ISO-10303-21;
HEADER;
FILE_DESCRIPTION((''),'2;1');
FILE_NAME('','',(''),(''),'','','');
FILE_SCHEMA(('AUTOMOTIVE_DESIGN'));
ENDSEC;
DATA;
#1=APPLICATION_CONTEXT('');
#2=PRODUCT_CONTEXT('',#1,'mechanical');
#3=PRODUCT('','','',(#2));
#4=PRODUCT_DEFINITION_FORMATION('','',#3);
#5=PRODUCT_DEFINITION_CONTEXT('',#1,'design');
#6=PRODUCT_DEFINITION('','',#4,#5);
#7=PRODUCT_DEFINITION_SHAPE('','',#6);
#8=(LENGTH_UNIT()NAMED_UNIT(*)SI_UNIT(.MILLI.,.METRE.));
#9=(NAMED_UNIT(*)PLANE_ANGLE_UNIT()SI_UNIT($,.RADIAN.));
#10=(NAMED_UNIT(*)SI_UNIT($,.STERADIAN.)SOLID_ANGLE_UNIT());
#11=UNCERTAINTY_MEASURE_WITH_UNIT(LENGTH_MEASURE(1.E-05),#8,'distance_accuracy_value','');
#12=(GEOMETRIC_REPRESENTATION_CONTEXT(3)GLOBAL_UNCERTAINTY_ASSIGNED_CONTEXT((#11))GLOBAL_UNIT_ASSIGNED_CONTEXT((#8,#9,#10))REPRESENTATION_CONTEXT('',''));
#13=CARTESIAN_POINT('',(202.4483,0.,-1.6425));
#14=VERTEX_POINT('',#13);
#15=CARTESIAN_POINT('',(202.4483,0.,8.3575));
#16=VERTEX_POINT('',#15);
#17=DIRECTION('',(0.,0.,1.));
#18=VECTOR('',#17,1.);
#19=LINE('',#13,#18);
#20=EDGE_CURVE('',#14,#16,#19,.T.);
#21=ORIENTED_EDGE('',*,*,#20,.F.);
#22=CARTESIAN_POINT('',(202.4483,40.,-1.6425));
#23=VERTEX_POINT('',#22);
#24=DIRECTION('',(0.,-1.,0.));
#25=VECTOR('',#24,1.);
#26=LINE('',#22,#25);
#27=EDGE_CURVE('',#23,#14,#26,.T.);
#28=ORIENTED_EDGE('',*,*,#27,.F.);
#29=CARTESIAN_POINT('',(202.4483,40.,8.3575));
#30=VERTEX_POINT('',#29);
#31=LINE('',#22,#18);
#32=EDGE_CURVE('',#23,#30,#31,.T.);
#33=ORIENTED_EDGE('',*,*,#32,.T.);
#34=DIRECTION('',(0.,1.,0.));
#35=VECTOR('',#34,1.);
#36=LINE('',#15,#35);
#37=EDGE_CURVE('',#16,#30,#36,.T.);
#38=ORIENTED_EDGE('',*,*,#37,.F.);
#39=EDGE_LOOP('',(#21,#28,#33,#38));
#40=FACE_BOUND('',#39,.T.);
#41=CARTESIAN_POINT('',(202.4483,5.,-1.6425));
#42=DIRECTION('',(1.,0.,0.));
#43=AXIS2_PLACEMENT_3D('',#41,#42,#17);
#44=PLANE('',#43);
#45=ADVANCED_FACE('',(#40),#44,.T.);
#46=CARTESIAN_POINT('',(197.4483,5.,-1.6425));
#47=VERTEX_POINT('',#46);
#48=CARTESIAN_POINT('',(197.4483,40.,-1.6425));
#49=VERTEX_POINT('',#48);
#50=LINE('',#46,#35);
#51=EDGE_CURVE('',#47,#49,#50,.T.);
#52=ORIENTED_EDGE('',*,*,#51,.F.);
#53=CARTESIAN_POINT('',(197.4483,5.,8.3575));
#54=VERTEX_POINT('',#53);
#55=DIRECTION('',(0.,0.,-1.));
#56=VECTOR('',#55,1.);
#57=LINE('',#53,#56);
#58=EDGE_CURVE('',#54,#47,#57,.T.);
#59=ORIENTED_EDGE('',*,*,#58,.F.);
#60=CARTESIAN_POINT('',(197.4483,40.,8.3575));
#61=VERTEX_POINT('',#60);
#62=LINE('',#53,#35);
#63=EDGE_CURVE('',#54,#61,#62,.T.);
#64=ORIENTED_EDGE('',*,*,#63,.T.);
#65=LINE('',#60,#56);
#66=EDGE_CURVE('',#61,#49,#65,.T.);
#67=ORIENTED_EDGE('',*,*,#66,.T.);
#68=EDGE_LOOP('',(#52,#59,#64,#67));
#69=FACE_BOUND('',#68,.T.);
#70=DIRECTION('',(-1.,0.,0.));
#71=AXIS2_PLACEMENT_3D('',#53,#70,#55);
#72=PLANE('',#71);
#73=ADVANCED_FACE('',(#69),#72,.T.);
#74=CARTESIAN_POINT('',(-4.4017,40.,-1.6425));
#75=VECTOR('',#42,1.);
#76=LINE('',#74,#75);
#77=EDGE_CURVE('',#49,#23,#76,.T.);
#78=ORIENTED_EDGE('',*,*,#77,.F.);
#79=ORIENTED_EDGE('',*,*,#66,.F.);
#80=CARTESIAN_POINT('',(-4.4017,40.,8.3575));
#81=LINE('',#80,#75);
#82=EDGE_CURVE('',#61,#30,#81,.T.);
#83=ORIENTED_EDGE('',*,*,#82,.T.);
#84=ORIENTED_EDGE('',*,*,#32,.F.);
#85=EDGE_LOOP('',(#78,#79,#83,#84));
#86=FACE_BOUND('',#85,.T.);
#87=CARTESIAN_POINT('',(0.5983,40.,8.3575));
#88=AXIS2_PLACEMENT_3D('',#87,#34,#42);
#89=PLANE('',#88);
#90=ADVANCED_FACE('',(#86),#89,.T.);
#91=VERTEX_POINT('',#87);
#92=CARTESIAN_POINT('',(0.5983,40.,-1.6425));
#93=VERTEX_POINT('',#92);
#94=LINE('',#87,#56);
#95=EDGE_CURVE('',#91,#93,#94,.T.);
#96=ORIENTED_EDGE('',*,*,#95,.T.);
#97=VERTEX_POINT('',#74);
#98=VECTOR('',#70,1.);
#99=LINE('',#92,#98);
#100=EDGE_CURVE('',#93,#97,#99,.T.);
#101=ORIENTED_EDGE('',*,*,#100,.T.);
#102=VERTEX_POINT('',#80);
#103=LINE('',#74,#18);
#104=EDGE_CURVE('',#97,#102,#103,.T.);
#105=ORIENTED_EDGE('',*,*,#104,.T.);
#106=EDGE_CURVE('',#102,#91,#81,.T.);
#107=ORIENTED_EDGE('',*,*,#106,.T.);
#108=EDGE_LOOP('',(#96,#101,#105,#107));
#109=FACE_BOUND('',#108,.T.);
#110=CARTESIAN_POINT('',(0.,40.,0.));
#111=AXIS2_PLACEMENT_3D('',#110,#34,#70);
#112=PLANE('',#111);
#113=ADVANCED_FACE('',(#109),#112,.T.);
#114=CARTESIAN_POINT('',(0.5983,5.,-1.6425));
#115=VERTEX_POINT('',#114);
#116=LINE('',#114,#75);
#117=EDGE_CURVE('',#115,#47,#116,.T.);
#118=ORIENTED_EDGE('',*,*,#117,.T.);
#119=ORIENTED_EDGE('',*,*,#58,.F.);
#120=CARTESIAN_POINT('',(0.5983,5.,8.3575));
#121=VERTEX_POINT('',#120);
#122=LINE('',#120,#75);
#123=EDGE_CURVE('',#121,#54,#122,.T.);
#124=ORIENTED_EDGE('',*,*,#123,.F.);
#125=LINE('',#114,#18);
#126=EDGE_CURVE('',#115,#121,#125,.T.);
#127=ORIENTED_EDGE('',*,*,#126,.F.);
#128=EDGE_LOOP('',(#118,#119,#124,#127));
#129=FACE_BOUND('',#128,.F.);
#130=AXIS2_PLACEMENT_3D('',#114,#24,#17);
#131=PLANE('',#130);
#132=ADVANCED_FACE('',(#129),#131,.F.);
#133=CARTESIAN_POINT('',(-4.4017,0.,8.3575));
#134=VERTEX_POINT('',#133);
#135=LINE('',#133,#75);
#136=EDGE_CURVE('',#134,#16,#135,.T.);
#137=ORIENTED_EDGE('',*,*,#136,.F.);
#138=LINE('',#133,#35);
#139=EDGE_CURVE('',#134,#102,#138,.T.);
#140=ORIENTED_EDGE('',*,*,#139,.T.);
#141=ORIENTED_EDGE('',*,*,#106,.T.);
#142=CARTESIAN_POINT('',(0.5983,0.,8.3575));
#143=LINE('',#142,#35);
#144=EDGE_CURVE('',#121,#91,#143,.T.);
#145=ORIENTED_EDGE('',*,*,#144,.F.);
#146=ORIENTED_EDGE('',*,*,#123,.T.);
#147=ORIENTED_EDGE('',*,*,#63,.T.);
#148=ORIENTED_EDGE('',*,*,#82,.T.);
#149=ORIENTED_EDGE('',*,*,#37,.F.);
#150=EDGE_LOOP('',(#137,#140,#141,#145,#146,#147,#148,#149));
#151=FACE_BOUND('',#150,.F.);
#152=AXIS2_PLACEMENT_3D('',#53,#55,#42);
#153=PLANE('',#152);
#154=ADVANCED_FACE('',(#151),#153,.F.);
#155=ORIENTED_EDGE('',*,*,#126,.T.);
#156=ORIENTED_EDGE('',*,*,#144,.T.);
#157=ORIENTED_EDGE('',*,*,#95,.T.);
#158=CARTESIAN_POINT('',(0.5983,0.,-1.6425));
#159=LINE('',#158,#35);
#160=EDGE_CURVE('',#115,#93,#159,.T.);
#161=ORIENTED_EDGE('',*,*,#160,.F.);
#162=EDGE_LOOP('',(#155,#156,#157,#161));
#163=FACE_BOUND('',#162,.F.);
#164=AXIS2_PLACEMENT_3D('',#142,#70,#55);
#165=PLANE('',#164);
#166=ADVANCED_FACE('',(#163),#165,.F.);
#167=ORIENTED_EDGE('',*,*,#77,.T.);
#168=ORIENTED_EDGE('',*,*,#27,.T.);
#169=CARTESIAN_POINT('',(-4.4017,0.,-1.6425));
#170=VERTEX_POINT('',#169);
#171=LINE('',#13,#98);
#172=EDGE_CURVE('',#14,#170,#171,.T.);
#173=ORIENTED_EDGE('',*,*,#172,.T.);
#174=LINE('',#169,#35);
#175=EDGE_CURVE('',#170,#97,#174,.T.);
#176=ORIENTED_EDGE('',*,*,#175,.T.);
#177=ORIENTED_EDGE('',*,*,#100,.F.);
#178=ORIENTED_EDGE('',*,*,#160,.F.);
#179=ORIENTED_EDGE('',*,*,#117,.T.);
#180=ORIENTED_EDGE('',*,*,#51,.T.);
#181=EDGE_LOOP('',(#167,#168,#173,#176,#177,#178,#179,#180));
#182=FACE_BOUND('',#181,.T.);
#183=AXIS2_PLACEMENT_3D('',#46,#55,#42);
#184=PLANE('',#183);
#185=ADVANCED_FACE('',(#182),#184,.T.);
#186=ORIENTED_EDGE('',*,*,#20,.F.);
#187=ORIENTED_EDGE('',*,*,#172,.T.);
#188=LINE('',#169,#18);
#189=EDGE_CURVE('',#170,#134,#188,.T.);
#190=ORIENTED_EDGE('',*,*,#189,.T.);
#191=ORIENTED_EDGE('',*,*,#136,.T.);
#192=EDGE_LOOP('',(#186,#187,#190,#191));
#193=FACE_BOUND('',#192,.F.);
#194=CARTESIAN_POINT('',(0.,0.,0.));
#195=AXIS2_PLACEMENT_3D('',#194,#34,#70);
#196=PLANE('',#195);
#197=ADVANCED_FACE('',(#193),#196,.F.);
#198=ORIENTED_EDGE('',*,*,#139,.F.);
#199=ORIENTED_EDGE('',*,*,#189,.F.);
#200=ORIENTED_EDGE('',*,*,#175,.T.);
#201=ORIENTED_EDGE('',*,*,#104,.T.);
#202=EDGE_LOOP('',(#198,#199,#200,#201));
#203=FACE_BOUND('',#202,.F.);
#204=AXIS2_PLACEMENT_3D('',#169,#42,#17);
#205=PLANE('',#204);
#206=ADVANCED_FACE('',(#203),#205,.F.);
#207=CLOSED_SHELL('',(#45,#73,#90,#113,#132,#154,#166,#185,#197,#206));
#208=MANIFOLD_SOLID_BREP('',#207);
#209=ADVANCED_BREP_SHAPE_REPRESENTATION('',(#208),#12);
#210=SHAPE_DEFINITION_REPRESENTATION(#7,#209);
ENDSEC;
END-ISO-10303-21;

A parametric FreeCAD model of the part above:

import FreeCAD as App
import Part
import Sketcher
from FreeCAD import Vector
Q = App.Units.Quantity


def add_polygon(sketch, points):
    """Adds a closed chain of lines whose ends are joined by coincident constraints."""
    first, n = sketch.GeometryCount, len(points)
    for a, b in zip(points, points[1:] + points[:1]):
        sketch.addGeometry(Part.LineSegment(App.Vector(*a, 0), App.Vector(*b, 0)), False)
    for i in range(n):
        sketch.addConstraint(Sketcher.Constraint("Coincident", first + i, 2, first + (i + 1) % n, 1))

doc = App.newDocument("Part")
body = doc.addObject("PartDesign::Body", "Body")

# Sketch on XZ plane
sketch1 = body.newObject("Sketcher::SketchObject", "Sketch")
sketch1.AttachmentSupport = (doc.getObject("XZ_Plane"), [""])
sketch1.MapMode = "FlatFace"
add_polygon(sketch1, [(-4, -2), (-4, 8), (1, 8), (1, -2)])  # lines 0-3
sketch1.addConstraint(Sketcher.Constraint("Vertical", 0))
sketch1.addConstraint(Sketcher.Constraint("Horizontal", 1))
sketch1.addConstraint(Sketcher.Constraint("Vertical", 2))
sketch1.addConstraint(Sketcher.Constraint("Horizontal", 3))
sketch1.addConstraint(Sketcher.Constraint("DistanceX", 1, 1, 1, 2, Q("5 mm")))
sketch1.addConstraint(Sketcher.Constraint("DistanceY", 0, 1, 0, 2, Q("10 mm")))
sketch1.addConstraint(Sketcher.Constraint("DistanceX", 0, 2, -1, 1, Q("4.4017 mm")))
sketch1.addConstraint(Sketcher.Constraint("DistanceY", -1, 1, 0, 2, Q("8.3575 mm")))
pad1 = body.newObject("PartDesign::Pad", "Pad")
pad1.Profile = sketch1
pad1.Length = 40
pad1.Reversed = True

# Sketch on YZ plane
sketch2 = body.newObject("Sketcher::SketchObject", "Sketch001")
sketch2.AttachmentSupport = (doc.getObject("YZ_Plane"), [""])
sketch2.MapMode = "FlatFace"
sketch2.AttachmentOffset = App.Placement(Vector(0, 0, 0.5983), App.Rotation())
add_polygon(sketch2, [(0, 8), (0, -2), (5, -2), (5, 8)])  # lines 0-3
sketch2.addConstraint(Sketcher.Constraint("Vertical", 0))
sketch2.addConstraint(Sketcher.Constraint("Horizontal", 1))
sketch2.addConstraint(Sketcher.Constraint("Vertical", 2))
sketch2.addConstraint(Sketcher.Constraint("Horizontal", 3))
sketch2.addConstraint(Sketcher.Constraint("PointOnObject", 0, 2, -2))
sketch2.addConstraint(Sketcher.Constraint("DistanceX", 1, 1, 1, 2, Q("5 mm")))
sketch2.addConstraint(Sketcher.Constraint("DistanceY", 0, 2, 0, 1, Q("10 mm")))
sketch2.addConstraint(Sketcher.Constraint("DistanceY", 0, 2, -1, 1, Q("1.6425 mm")))
pad2 = body.newObject("PartDesign::Pad", "Pad001")
pad2.Profile = sketch2
pad2.Length = 201.85

# Sketch on XZ plane
sketch3 = body.newObject("Sketcher::SketchObject", "Sketch002")
sketch3.AttachmentSupport = (doc.getObject("XZ_Plane"), [""])
sketch3.MapMode = "FlatFace"
sketch3.AttachmentOffset = App.Placement(Vector(0, 0, -5), App.Rotation())
add_polygon(sketch3, [(197, -2), (197, 8), (202, 8), (202, -2)])  # lines 0-3
sketch3.addConstraint(Sketcher.Constraint("Vertical", 0))
sketch3.addConstraint(Sketcher.Constraint("Horizontal", 1))
sketch3.addConstraint(Sketcher.Constraint("Vertical", 2))
sketch3.addConstraint(Sketcher.Constraint("Horizontal", 3))
sketch3.addConstraint(Sketcher.Constraint("DistanceX", 1, 1, 1, 2, Q("5 mm")))
sketch3.addConstraint(Sketcher.Constraint("DistanceY", 0, 1, 0, 2, Q("10 mm")))
sketch3.addConstraint(Sketcher.Constraint("DistanceX", -1, 1, 0, 2, Q("197.4483 mm")))
sketch3.addConstraint(Sketcher.Constraint("DistanceY", -1, 1, 0, 2, Q("8.3575 mm")))
pad3 = body.newObject("PartDesign::Pad", "Pad002")
pad3.Profile = sketch3
pad3.Length = 35
pad3.Reversed = True

doc.recompute()
